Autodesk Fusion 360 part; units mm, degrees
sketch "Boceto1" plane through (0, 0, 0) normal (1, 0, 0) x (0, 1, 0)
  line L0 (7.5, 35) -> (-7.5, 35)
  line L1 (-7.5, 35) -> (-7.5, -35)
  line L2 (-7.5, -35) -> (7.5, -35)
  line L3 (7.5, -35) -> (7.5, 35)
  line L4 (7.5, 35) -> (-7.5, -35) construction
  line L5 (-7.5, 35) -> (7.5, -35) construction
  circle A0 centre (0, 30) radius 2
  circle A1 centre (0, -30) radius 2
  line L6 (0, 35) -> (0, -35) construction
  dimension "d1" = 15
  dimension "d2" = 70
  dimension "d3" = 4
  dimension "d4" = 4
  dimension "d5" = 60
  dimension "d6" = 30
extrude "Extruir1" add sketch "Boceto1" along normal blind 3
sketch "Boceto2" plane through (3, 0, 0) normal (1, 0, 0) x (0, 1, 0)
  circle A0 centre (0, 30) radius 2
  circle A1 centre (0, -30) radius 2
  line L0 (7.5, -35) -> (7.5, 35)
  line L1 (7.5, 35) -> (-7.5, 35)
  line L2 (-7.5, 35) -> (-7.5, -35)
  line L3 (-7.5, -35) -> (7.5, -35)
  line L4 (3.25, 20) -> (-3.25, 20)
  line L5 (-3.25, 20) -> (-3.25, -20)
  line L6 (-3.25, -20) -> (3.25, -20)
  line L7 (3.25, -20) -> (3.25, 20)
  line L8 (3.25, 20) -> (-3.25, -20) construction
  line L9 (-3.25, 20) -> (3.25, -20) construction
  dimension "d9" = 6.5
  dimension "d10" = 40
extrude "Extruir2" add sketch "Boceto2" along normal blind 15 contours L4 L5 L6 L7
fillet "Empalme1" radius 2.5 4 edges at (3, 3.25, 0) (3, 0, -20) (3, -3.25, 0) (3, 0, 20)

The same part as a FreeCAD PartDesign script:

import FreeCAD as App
import Part
import Sketcher


def edges_at(feature, points):
    """Names of the edges that pass closest to the given points."""
    edges = feature.Shape.Edges
    near = lambda p: min(range(len(edges)), key=lambda i: edges[i].distToShape(Part.Vertex(*p))[0])
    return sorted({f"Edge{near(p) + 1}" for p in points})


def add_polygon(sketch, points):
    """Adds a closed chain of lines whose ends are joined by coincident constraints."""
    first, n = sketch.GeometryCount, len(points)
    for a, b in zip(points, points[1:] + points[:1]):
        sketch.addGeometry(Part.LineSegment(App.Vector(*a, 0), App.Vector(*b, 0)), False)
    for i in range(n):
        sketch.addConstraint(Sketcher.Constraint("Coincident", first + i, 2, first + (i + 1) % n, 1))

doc = App.newDocument("Part")
body = doc.addObject("PartDesign::Body", "Body")

# Sketch on YZ plane
sketch1 = doc.addObject("Sketcher::SketchObject", "Sketch")
body.addObject(sketch1)
sketch1.AttachmentSupport = (doc.YZ_Plane, [""])
sketch1.MapMode = "FlatFace"
add_polygon(sketch1, [(7.5, -35), (7.5, 35), (-7.5, 35), (-7.5, -35)])  # lines 0-3
sketch1.addGeometry(Part.Circle(App.Vector(0, -30, 0), App.Vector(0, 0, 1), 2), False)  # 4
sketch1.addGeometry(Part.Circle(App.Vector(0, 30, 0), App.Vector(0, 0, 1), 2), False)  # 5
sketch1.addConstraint([
    Sketcher.Constraint("Vertical", 0),
    Sketcher.Constraint("Horizontal", 1),
    Sketcher.Constraint("Vertical", 2),
    Sketcher.Constraint("Horizontal", 3),
    Sketcher.Constraint("Equal", 4, 5),
    Sketcher.Constraint("Symmetric", 4, 3, 5, 3, -1, 1),
    Sketcher.Constraint("Symmetric", 0, 2, 2, 2, -1, 1),
    Sketcher.Constraint("PointOnObject", 4, 3, -2),
    Sketcher.Constraint("Diameter", 4, 4.0),
    Sketcher.Constraint("DistanceX", 1, 2, 1, 1, 15.0),
    Sketcher.Constraint("DistanceY", 0, 1, 0, 2, 70.0),
    Sketcher.Constraint("DistanceY", 4, 3, -1, 1, 30.0),
])
pad1 = doc.addObject("PartDesign::Pad", "Pad")
body.addObject(pad1)
pad1.Profile = sketch1
pad1.Length = 3

# Sketch on YZ plane
sketch2 = doc.addObject("Sketcher::SketchObject", "Sketch001")
body.addObject(sketch2)
sketch2.AttachmentSupport = (doc.YZ_Plane, [""])
sketch2.MapMode = "FlatFace"
sketch2.AttachmentOffset = App.Placement(App.Vector(0, 0, 3), App.Rotation())
add_polygon(sketch2, [(3.25, -20), (3.25, 20), (-3.25, 20), (-3.25, -20)])  # lines 0-3
sketch2.addConstraint([
    Sketcher.Constraint("Vertical", 0),
    Sketcher.Constraint("Horizontal", 1),
    Sketcher.Constraint("Vertical", 2),
    Sketcher.Constraint("Horizontal", 3),
    Sketcher.Constraint("Symmetric", 0, 2, 2, 2, -1, 1),
    Sketcher.Constraint("DistanceY", 0, 1, 0, 2, 40.0),
    Sketcher.Constraint("DistanceX", 1, 2, 1, 1, 6.5),
])
pad2 = doc.addObject("PartDesign::Pad", "Pad001")
body.addObject(pad2)
pad2.Profile = sketch2
pad2.Length = 15
doc.recompute()

fillet = doc.addObject("PartDesign::Fillet", "Fillet")
body.addObject(fillet)
fillet.Base = (pad2, edges_at(pad2, [
    (3, 3.25, 0),
    (3, 0, -20),
    (3, -3.25, 0),
    (3, 0, 20),
]))
fillet.Radius = 2.5

doc.recompute()
